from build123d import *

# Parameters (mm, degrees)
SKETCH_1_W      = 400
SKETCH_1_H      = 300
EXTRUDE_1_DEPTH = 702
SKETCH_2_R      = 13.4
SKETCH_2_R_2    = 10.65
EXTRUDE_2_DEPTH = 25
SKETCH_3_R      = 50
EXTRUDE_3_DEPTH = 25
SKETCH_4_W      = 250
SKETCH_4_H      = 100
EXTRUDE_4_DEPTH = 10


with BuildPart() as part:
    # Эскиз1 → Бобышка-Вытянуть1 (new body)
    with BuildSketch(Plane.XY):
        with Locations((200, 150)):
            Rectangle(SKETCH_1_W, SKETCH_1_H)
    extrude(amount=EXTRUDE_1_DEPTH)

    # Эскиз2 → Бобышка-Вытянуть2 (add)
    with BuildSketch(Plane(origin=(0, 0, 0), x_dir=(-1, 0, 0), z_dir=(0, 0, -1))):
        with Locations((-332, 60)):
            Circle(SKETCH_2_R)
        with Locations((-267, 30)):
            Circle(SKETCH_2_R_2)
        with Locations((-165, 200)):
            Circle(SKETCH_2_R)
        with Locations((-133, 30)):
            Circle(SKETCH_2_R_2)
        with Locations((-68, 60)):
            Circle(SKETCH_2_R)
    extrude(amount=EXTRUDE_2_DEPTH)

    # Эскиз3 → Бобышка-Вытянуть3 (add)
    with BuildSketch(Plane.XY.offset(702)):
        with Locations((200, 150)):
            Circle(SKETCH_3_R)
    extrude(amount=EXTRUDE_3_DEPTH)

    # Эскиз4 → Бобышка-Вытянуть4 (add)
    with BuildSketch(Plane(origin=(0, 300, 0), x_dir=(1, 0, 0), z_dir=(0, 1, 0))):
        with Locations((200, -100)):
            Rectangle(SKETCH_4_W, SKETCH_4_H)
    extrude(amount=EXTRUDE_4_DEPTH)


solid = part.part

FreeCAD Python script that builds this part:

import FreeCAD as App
import Part
import Sketcher

doc = App.newDocument("Part")
params = doc.addObject("Spreadsheet::Sheet", "Params")
for row, (alias, value) in enumerate([
    ("sketch1_width", "400 mm"),
    ("sketch1_height", "300 mm"),
    ("pad1_length", "702 mm"),
    ("sketch2_diameter", "26.8 mm"),
    ("sketch2_diameter2", "21.3 mm"),
    ("pad2_length", "25 mm"),
    ("sketch3_diameter", "100 mm"),
    ("pad3_length", "25 mm"),
    ("sketch4_width", "250 mm"),
    ("sketch4_height", "100 mm"),
    ("pad4_length", "10 mm"),
], start=1):
    params.set(f"A{row}", alias)
    params.set(f"B{row}", "=" + value)
    params.setAlias(f"B{row}", alias)

body = doc.addObject("PartDesign::Body", "Body")

# Sketch on XY plane
sketch1 = doc.addObject("Sketcher::SketchObject", "Sketch")
body.addObject(sketch1)
sketch1.AttachmentSupport = (doc.XY_Plane, [""])
sketch1.MapMode = "FlatFace"
sketch1.addGeometry(Part.LineSegment(App.Vector(0, 300, 0), App.Vector(0, 0, 0)), False)
sketch1.addGeometry(Part.LineSegment(App.Vector(0, 0, 0), App.Vector(400, 0, 0)), False)
sketch1.addGeometry(Part.LineSegment(App.Vector(400, 0, 0), App.Vector(400, 300, 0)), False)
sketch1.addGeometry(Part.LineSegment(App.Vector(400, 300, 0), App.Vector(0, 300, 0)), False)
sketch1.addConstraint(Sketcher.Constraint("Coincident", 0, 2, 1, 1))
sketch1.addConstraint(Sketcher.Constraint("Coincident", 1, 2, 2, 1))
sketch1.addConstraint(Sketcher.Constraint("Coincident", 2, 2, 3, 1))
sketch1.addConstraint(Sketcher.Constraint("Coincident", 3, 2, 0, 1))
sketch1.addConstraint(Sketcher.Constraint("Vertical", 0))
sketch1.addConstraint(Sketcher.Constraint("Horizontal", 1))
sketch1.addConstraint(Sketcher.Constraint("Vertical", 2))
sketch1.addConstraint(Sketcher.Constraint("Horizontal", 3))
sketch1.addConstraint(Sketcher.Constraint("Coincident", 0, 2, -1, 1))
sketch1.addConstraint(Sketcher.Constraint("DistanceX", 1, 1, 1, 2, 400.0))
sketch1.addConstraint(Sketcher.Constraint("DistanceY", 0, 2, 0, 1, 300.0))
sketch1.setExpression("Constraints[9]", "Params.sketch1_width")
sketch1.setExpression("Constraints[10]", "Params.sketch1_height")
pad1 = doc.addObject("PartDesign::Pad", "Pad")
body.addObject(pad1)
pad1.Profile = sketch1
pad1.setExpression("Length", "Params.pad1_length")

# Sketch on XY plane
sketch2 = doc.addObject("Sketcher::SketchObject", "Sketch001")
body.addObject(sketch2)
sketch2.AttachmentSupport = (doc.XY_Plane, [""])
sketch2.MapMode = "FlatFace"
sketch2.addGeometry(Part.Circle(App.Vector(332, 60, 0), App.Vector(0, 0, 1), 13.4), False)
sketch2.addGeometry(Part.Circle(App.Vector(267, 30, 0), App.Vector(0, 0, 1), 10.65), False)
sketch2.addGeometry(Part.Circle(App.Vector(165, 200, 0), App.Vector(0, 0, 1), 13.4), False)
sketch2.addGeometry(Part.Circle(App.Vector(133, 30, 0), App.Vector(0, 0, 1), 10.65), False)
sketch2.addGeometry(Part.Circle(App.Vector(68, 60, 0), App.Vector(0, 0, 1), 13.4), False)
sketch2.addConstraint(Sketcher.Constraint("Equal", 0, 2))
sketch2.addConstraint(Sketcher.Constraint("Equal", 1, 3))
sketch2.addConstraint(Sketcher.Constraint("Equal", 2, 4))
sketch2.addConstraint(Sketcher.Constraint("Horizontal", 1, 3, 3, 3))
sketch2.addConstraint(Sketcher.Constraint("Horizontal", 0, 3, 4, 3))
sketch2.addConstraint(Sketcher.Constraint("Diameter", 0, 26.8))
sketch2.addConstraint(Sketcher.Constraint("Diameter", 1, 21.3))
sketch2.addConstraint(Sketcher.Constraint("DistanceX", -1, 1, 0, 3, 332.0))
sketch2.addConstraint(Sketcher.Constraint("DistanceY", -1, 1, 0, 3, 60.0))
sketch2.addConstraint(Sketcher.Constraint("DistanceX", -1, 1, 1, 3, 267.0))
sketch2.addConstraint(Sketcher.Constraint("DistanceY", -1, 1, 1, 3, 30.0))
sketch2.addConstraint(Sketcher.Constraint("DistanceX", -1, 1, 2, 3, 165.0))
sketch2.addConstraint(Sketcher.Constraint("DistanceY", -1, 1, 2, 3, 200.0))
sketch2.addConstraint(Sketcher.Constraint("DistanceX", -1, 1, 3, 3, 133.0))
sketch2.addConstraint(Sketcher.Constraint("DistanceX", -1, 1, 4, 3, 68.0))
sketch2.setExpression("Constraints[5]", "Params.sketch2_diameter")
sketch2.setExpression("Constraints[6]", "Params.sketch2_diameter2")
pad2 = doc.addObject("PartDesign::Pad", "Pad001")
body.addObject(pad2)
pad2.Profile = sketch2
pad2.setExpression("Length", "Params.pad2_length")
pad2.Reversed = True

# Sketch on XY plane
sketch3 = doc.addObject("Sketcher::SketchObject", "Sketch002")
body.addObject(sketch3)
sketch3.AttachmentSupport = (doc.XY_Plane, [""])
sketch3.MapMode = "FlatFace"
sketch3.AttachmentOffset = App.Placement(App.Vector(0, 0, 702), App.Rotation())
sketch3.addGeometry(Part.Circle(App.Vector(200, 150, 0), App.Vector(0, 0, 1), 50), False)
sketch3.addConstraint(Sketcher.Constraint("Diameter", 0, 100.0))
sketch3.addConstraint(Sketcher.Constraint("DistanceX", -1, 1, 0, 3, 200.0))
sketch3.addConstraint(Sketcher.Constraint("DistanceY", -1, 1, 0, 3, 150.0))
sketch3.setExpression("Constraints[0]", "Params.sketch3_diameter")
pad3 = doc.addObject("PartDesign::Pad", "Pad002")
body.addObject(pad3)
pad3.Profile = sketch3
pad3.setExpression("Length", "Params.pad3_length")

# Sketch on XZ plane
sketch4 = doc.addObject("Sketcher::SketchObject", "Sketch003")
body.addObject(sketch4)
sketch4.AttachmentSupport = (doc.XZ_Plane, [""])
sketch4.MapMode = "FlatFace"
sketch4.AttachmentOffset = App.Placement(App.Vector(0, 0, -300), App.Rotation())
sketch4.addGeometry(Part.LineSegment(App.Vector(75, 50, 0), App.Vector(75, 150, 0)), False)
sketch4.addGeometry(Part.LineSegment(App.Vector(75, 150, 0), App.Vector(325, 150, 0)), False)
sketch4.addGeometry(Part.LineSegment(App.Vector(325, 150, 0), App.Vector(325, 50, 0)), False)
sketch4.addGeometry(Part.LineSegment(App.Vector(325, 50, 0), App.Vector(75, 50, 0)), False)
sketch4.addConstraint(Sketcher.Constraint("Coincident", 0, 2, 1, 1))
sketch4.addConstraint(Sketcher.Constraint("Coincident", 1, 2, 2, 1))
sketch4.addConstraint(Sketcher.Constraint("Coincident", 2, 2, 3, 1))
sketch4.addConstraint(Sketcher.Constraint("Coincident", 3, 2, 0, 1))
sketch4.addConstraint(Sketcher.Constraint("Vertical", 0))
sketch4.addConstraint(Sketcher.Constraint("Horizontal", 1))
sketch4.addConstraint(Sketcher.Constraint("Vertical", 2))
sketch4.addConstraint(Sketcher.Constraint("Horizontal", 3))
sketch4.addConstraint(Sketcher.Constraint("DistanceX", 1, 1, 1, 2, 250.0))
sketch4.addConstraint(Sketcher.Constraint("DistanceY", 0, 1, 0, 2, 100.0))
sketch4.addConstraint(Sketcher.Constraint("DistanceX", -1, 1, 0, 2, 75.0))
sketch4.addConstraint(Sketcher.Constraint("DistanceY", -1, 1, 0, 2, 150.0))
sketch4.setExpression("Constraints[8]", "Params.sketch4_width")
sketch4.setExpression("Constraints[9]", "Params.sketch4_height")
pad4 = doc.addObject("PartDesign::Pad", "Pad003")
body.addObject(pad4)
pad4.Profile = sketch4
pad4.setExpression("Length", "Params.pad4_length")
pad4.Reversed = True

doc.recompute()
